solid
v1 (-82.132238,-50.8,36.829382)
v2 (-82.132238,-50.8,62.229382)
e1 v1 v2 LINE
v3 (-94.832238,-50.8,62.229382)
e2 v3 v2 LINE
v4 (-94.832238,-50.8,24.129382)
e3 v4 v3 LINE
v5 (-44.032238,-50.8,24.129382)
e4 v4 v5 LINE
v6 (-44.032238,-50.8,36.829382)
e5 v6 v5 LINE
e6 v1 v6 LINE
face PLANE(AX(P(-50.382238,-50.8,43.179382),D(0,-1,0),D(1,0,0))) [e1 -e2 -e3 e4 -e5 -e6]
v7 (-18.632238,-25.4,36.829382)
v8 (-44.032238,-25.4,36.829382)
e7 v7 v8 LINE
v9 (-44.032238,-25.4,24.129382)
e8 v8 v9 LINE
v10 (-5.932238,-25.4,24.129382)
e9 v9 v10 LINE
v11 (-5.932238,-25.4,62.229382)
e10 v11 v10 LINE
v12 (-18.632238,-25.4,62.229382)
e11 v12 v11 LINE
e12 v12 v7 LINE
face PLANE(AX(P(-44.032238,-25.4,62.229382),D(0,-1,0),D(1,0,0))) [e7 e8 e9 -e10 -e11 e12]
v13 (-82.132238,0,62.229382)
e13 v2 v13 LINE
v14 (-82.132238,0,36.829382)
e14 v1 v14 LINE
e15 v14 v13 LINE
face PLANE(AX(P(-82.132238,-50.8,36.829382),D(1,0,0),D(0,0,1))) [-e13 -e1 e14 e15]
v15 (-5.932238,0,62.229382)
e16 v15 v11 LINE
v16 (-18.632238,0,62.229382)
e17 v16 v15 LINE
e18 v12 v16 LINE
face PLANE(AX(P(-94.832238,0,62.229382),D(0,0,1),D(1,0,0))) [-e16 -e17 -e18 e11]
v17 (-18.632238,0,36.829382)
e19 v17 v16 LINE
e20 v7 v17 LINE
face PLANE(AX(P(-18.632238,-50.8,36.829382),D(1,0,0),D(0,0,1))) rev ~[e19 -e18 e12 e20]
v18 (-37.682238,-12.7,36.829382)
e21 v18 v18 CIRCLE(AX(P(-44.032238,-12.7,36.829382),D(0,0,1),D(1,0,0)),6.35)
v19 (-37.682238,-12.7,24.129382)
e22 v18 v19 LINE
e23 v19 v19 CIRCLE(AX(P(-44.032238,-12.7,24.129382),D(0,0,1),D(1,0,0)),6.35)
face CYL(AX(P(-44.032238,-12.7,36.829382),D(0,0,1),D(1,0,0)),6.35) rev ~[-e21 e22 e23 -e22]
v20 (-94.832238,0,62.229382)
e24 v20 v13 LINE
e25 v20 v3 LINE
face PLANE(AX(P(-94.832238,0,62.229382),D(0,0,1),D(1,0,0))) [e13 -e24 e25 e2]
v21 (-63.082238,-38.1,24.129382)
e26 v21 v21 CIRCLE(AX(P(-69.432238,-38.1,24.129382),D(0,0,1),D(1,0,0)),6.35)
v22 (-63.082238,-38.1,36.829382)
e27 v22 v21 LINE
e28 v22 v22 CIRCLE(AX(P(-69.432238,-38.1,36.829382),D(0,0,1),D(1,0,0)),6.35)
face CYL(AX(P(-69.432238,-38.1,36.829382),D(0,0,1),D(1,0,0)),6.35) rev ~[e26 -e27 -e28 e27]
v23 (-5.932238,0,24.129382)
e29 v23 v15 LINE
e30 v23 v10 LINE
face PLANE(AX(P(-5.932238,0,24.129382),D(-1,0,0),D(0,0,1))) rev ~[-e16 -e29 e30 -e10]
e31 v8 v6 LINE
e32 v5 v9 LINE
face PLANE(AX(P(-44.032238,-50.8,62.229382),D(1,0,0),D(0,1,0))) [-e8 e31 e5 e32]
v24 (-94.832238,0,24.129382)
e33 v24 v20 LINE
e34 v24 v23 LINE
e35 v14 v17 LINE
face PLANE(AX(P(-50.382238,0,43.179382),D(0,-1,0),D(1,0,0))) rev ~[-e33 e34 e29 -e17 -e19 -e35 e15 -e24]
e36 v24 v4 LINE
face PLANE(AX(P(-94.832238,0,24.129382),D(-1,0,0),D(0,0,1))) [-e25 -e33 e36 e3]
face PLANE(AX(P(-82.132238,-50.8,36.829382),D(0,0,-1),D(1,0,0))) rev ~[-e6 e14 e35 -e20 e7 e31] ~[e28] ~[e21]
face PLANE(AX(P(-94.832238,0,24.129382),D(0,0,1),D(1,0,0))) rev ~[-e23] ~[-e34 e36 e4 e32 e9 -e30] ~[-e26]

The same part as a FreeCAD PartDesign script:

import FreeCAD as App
import Part
import Sketcher

V = App.Vector
Q = App.Units.Quantity


def add_polygon(sketch, points):
    """Adds a closed chain of lines whose ends are joined by coincident constraints."""
    first, n = sketch.GeometryCount, len(points)
    for a, b in zip(points, points[1:] + points[:1]):
        sketch.addGeometry(Part.LineSegment(App.Vector(*a, 0), App.Vector(*b, 0)), False)
    for i in range(n):
        sketch.addConstraint(Sketcher.Constraint("Coincident", first + i, 2, first + (i + 1) % n, 1))

doc = App.newDocument("Part")
params = doc.addObject("Spreadsheet::Sheet", "Params")
for row, (alias, value) in enumerate([
    ("sketch1_width", "3.5 in"),
    ("sketch1_height", "1.5 in"),
    ("pad1_length", "2 in"),
    ("sketch2_height", "1 in"),
    ("sketch2_width", "2.5 in"),
    ("sketch3_height", "1 in"),
    ("sketch3_width", "1.5 in"),
    ("sketch4_diameter", "0.5 in"),
    ("sketch5_diameter", "0.5 in"),
], start=1):
    params.set(f"A{row}", alias)
    params.set(f"B{row}", "=" + value)
    params.setAlias(f"B{row}", alias)

body = doc.addObject("PartDesign::Body", "Body")

# Sketch on XZ plane
sketch1 = body.newObject("Sketcher::SketchObject", "Sketch")
sketch1.AttachmentSupport = (doc.getObject("XZ_Plane"), [""])
sketch1.MapMode = "FlatFace"
add_polygon(sketch1, [(-95, 62), (-95, 24), (-6, 24), (-6, 62)])  # lines 0-3
sketch1.addConstraint(Sketcher.Constraint("Vertical", 0))
sketch1.addConstraint(Sketcher.Constraint("Horizontal", 1))
sketch1.addConstraint(Sketcher.Constraint("Vertical", 2))
sketch1.addConstraint(Sketcher.Constraint("Horizontal", 3))
sketch1.addConstraint(Sketcher.Constraint("DistanceX", 1, 1, 1, 2, Q("3.5 in")))
sketch1.addConstraint(Sketcher.Constraint("DistanceY", 0, 2, 0, 1, Q("1.5 in")))
sketch1.addConstraint(Sketcher.Constraint("DistanceX", 0, 2, -1, 1, 94.832238))
sketch1.addConstraint(Sketcher.Constraint("DistanceY", -1, 1, 0, 2, 24.129382))
sketch1.setExpression("Constraints[8]", "Params.sketch1_width")
sketch1.setExpression("Constraints[9]", "Params.sketch1_height")
pad1 = body.newObject("PartDesign::Pad", "Pad")
pad1.Profile = sketch1
pad1.setExpression("Length", "Params.pad1_length")

# Sketch on XZ plane
sketch2 = body.newObject("Sketcher::SketchObject", "Sketch001")
sketch2.AttachmentSupport = (doc.getObject("XZ_Plane"), [""])
sketch2.MapMode = "FlatFace"
sketch2.AttachmentOffset = App.Placement(V(0, 0, 2 * 25.4), App.Rotation())
add_polygon(sketch2, [(-82, 62), (-82, 37), (-19, 37), (-19, 62)])  # lines 0-3
sketch2.addConstraint(Sketcher.Constraint("Vertical", 0))
sketch2.addConstraint(Sketcher.Constraint("Horizontal", 1))
sketch2.addConstraint(Sketcher.Constraint("Vertical", 2))
sketch2.addConstraint(Sketcher.Constraint("Horizontal", 3))
sketch2.addConstraint(Sketcher.Constraint("DistanceY", 0, 2, 0, 1, Q("1 in")))
sketch2.addConstraint(Sketcher.Constraint("DistanceX", 1, 1, 1, 2, Q("2.5 in")))
sketch2.addConstraint(Sketcher.Constraint("DistanceX", 0, 2, -1, 1, 82.132238))
sketch2.addConstraint(Sketcher.Constraint("DistanceY", -1, 1, 0, 2, 36.829382))
sketch2.setExpression("Constraints[8]", "Params.sketch2_height")
sketch2.setExpression("Constraints[9]", "Params.sketch2_width")
pocket1 = body.newObject("PartDesign::Pocket", "Pocket")
pocket1.Profile = sketch2
pocket1.Type = "ThroughAll"

# Sketch on XY plane
sketch3 = body.newObject("Sketcher::SketchObject", "Sketch002")
sketch3.AttachmentSupport = (doc.getObject("XY_Plane"), [""])
sketch3.MapMode = "FlatFace"
sketch3.AttachmentOffset = App.Placement(V(0, 0, 62.229382), App.Rotation())
add_polygon(sketch3, [(-44, -25), (-44, -51), (-6, -51), (-6, -25)])  # lines 0-3
sketch3.addConstraint(Sketcher.Constraint("Vertical", 0))
sketch3.addConstraint(Sketcher.Constraint("Horizontal", 1))
sketch3.addConstraint(Sketcher.Constraint("Vertical", 2))
sketch3.addConstraint(Sketcher.Constraint("Horizontal", 3))
sketch3.addConstraint(Sketcher.Constraint("DistanceY", 0, 2, 0, 1, Q("1 in")))
sketch3.addConstraint(Sketcher.Constraint("DistanceX", 1, 1, 1, 2, Q("1.5 in")))
sketch3.addConstraint(Sketcher.Constraint("DistanceY", 0, 2, -1, 1, Q("2 in")))
sketch3.addConstraint(Sketcher.Constraint("DistanceX", 0, 2, -1, 1, 44.032238))
sketch3.setExpression("Constraints[8]", "Params.sketch3_height")
sketch3.setExpression("Constraints[9]", "Params.sketch3_width")
pocket2 = body.newObject("PartDesign::Pocket", "Pocket001")
pocket2.Profile = sketch3
pocket2.Type = "ThroughAll"

# Sketch on XY plane
sketch4 = body.newObject("Sketcher::SketchObject", "Sketch003")
sketch4.AttachmentSupport = (doc.getObject("XY_Plane"), [""])
sketch4.MapMode = "FlatFace"
sketch4.AttachmentOffset = App.Placement(V(0, 0, 36.829382), App.Rotation())
sketch4.addGeometry(Part.Circle(V(-44, -13, 0), V(0, 0, 1), 6), False)
sketch4.addConstraint(Sketcher.Constraint("Diameter", 0, Q("0.5 in")))
sketch4.addConstraint(Sketcher.Constraint("DistanceY", 0, 3, -1, 1, Q("0.5 in")))
sketch4.addConstraint(Sketcher.Constraint("DistanceX", 0, 3, -1, 1, 44.032238))
sketch4.setExpression("Constraints[0]", "Params.sketch4_diameter")
pocket3 = body.newObject("PartDesign::Pocket", "Pocket002")
pocket3.Profile = sketch4
pocket3.Type = "ThroughAll"

# Sketch on XY plane
sketch5 = body.newObject("Sketcher::SketchObject", "Sketch004")
sketch5.AttachmentSupport = (doc.getObject("XY_Plane"), [""])
sketch5.MapMode = "FlatFace"
sketch5.AttachmentOffset = App.Placement(V(0, 0, 36.829382), App.Rotation())
sketch5.addGeometry(Part.Circle(V(-69, -38, 0), V(0, 0, 1), 6), False)
sketch5.addConstraint(Sketcher.Constraint("Diameter", 0, Q("0.5 in")))
sketch5.addConstraint(Sketcher.Constraint("DistanceY", 0, 3, -1, 1, Q("1.5 in")))
sketch5.addConstraint(Sketcher.Constraint("DistanceX", 0, 3, -1, 1, 69.432238))
sketch5.setExpression("Constraints[0]", "Params.sketch5_diameter")
pocket4 = body.newObject("PartDesign::Pocket", "Pocket003")
pocket4.Profile = sketch5
pocket4.Type = "ThroughAll"

doc.recompute()
